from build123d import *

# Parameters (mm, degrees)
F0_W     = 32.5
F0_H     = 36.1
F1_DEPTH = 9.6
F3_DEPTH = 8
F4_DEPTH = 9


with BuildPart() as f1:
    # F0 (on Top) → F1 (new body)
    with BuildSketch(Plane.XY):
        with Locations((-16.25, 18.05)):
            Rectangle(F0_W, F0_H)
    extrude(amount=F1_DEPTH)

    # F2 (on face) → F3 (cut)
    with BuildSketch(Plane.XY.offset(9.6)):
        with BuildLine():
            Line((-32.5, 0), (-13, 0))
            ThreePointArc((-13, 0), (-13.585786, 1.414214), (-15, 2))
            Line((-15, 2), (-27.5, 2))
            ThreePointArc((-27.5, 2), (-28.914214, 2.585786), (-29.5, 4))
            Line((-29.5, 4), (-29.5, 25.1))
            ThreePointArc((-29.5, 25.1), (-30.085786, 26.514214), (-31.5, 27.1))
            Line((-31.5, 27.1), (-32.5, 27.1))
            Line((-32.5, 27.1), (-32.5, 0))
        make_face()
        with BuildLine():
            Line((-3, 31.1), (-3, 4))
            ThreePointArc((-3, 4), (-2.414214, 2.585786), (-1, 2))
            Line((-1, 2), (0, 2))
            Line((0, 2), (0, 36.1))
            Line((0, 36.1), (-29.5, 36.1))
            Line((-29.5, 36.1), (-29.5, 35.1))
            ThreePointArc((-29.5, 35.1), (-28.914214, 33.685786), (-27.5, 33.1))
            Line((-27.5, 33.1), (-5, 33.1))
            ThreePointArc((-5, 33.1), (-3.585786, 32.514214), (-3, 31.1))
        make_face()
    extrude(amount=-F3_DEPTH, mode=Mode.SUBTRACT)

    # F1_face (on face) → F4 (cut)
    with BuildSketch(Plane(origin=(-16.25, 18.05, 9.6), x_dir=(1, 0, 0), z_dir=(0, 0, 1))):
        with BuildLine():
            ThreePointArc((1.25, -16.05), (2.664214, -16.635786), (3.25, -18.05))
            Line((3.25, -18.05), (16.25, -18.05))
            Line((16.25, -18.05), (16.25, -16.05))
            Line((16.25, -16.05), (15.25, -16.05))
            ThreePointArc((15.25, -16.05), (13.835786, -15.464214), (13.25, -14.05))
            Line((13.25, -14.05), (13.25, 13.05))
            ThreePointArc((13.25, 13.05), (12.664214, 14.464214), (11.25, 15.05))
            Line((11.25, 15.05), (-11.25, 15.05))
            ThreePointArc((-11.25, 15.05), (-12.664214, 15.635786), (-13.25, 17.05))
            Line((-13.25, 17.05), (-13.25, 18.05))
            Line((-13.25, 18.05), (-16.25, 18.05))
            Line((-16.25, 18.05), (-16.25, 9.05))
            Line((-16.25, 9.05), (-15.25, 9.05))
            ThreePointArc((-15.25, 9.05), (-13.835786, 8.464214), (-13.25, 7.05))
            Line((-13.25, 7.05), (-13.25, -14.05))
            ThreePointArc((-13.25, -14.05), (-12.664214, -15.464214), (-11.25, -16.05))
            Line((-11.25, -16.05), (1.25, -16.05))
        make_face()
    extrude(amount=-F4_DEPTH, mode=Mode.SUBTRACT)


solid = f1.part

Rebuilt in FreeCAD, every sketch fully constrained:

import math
import FreeCAD as App
import Part
import Sketcher


def add_polygon(sketch, points):
    """Adds a closed chain of lines whose ends are joined by coincident constraints."""
    first, n = sketch.GeometryCount, len(points)
    for a, b in zip(points, points[1:] + points[:1]):
        sketch.addGeometry(Part.LineSegment(App.Vector(*a, 0), App.Vector(*b, 0)), False)
    for i in range(n):
        sketch.addConstraint(Sketcher.Constraint("Coincident", first + i, 2, first + (i + 1) % n, 1))

doc = App.newDocument("Part")
body = doc.addObject("PartDesign::Body", "Body")

# Sketch on XY plane
sketch1 = body.newObject("Sketcher::SketchObject", "Sketch")
sketch1.AttachmentSupport = (doc.getObject("XY_Plane"), [""])
sketch1.MapMode = "FlatFace"
add_polygon(sketch1, [(-32, 36), (-32, 0), (0, 0), (0, 36)])  # lines 0-3
sketch1.addConstraint(Sketcher.Constraint("Vertical", 0))
sketch1.addConstraint(Sketcher.Constraint("Horizontal", 1))
sketch1.addConstraint(Sketcher.Constraint("Vertical", 2))
sketch1.addConstraint(Sketcher.Constraint("Horizontal", 3))
sketch1.addConstraint(Sketcher.Constraint("Coincident", 1, 2, -1, 1))
sketch1.addConstraint(Sketcher.Constraint("DistanceX", 1, 1, 1, 2, 32.5))
sketch1.addConstraint(Sketcher.Constraint("DistanceY", 0, 2, 0, 1, 36.1))
pad1 = body.newObject("PartDesign::Pad", "Pad")
pad1.Profile = sketch1
pad1.Length = 9.6

# Sketch on XY plane
sketch2 = body.newObject("Sketcher::SketchObject", "Sketch001")
sketch2.AttachmentSupport = (doc.getObject("XY_Plane"), [""])
sketch2.MapMode = "FlatFace"
sketch2.AttachmentOffset = App.Placement(App.Vector(0, 0, 9.6), App.Rotation())
sketch2.addGeometry(Part.LineSegment(App.Vector(-32.5, 0, 0), App.Vector(-13, 0, 0)), False)
sketch2.addGeometry(Part.ArcOfCircle(Part.Circle(App.Vector(-15, 0, 0), App.Vector(0, 0, 1), 2), math.radians(0), math.radians(90)), False)
sketch2.addGeometry(Part.LineSegment(App.Vector(-15, 2, 0), App.Vector(-27.5, 2, 0)), False)
sketch2.addGeometry(Part.ArcOfCircle(Part.Circle(App.Vector(-27.5, 4, 0), App.Vector(0, 0, 1), 2), math.radians(180), math.radians(270)), False)
sketch2.addGeometry(Part.LineSegment(App.Vector(-29.5, 4, 0), App.Vector(-29.5, 25.1, 0)), False)
sketch2.addGeometry(Part.ArcOfCircle(Part.Circle(App.Vector(-31.5, 25.1, 0), App.Vector(0, 0, 1), 2), math.radians(0), math.radians(90)), False)
sketch2.addGeometry(Part.LineSegment(App.Vector(-31.5, 27.1, 0), App.Vector(-32.5, 27.1, 0)), False)
sketch2.addGeometry(Part.LineSegment(App.Vector(-32.5, 27.1, 0), App.Vector(-32.5, 0, 0)), False)
sketch2.addGeometry(Part.LineSegment(App.Vector(-3, 31.1, 0), App.Vector(-3, 4, 0)), False)
sketch2.addGeometry(Part.ArcOfCircle(Part.Circle(App.Vector(-1, 4, 0), App.Vector(0, 0, 1), 2), math.radians(180), math.radians(270)), False)
sketch2.addGeometry(Part.LineSegment(App.Vector(-1, 2, 0), App.Vector(0, 2, 0)), False)
sketch2.addGeometry(Part.LineSegment(App.Vector(0, 2, 0), App.Vector(0, 36.1, 0)), False)
sketch2.addGeometry(Part.LineSegment(App.Vector(0, 36.1, 0), App.Vector(-29.5, 36.1, 0)), False)
sketch2.addGeometry(Part.LineSegment(App.Vector(-29.5, 36.1, 0), App.Vector(-29.5, 35.1, 0)), False)
sketch2.addGeometry(Part.ArcOfCircle(Part.Circle(App.Vector(-27.5, 35.1, 0), App.Vector(0, 0, 1), 2), math.radians(180), math.radians(270)), False)
sketch2.addGeometry(Part.LineSegment(App.Vector(-27.5, 33.1, 0), App.Vector(-5, 33.1, 0)), False)
sketch2.addGeometry(Part.ArcOfCircle(Part.Circle(App.Vector(-5, 31.1, 0), App.Vector(0, 0, 1), 2), math.radians(0), math.radians(90)), False)
sketch2.addConstraint(Sketcher.Constraint("Coincident", 0, 2, 1, 1))
sketch2.addConstraint(Sketcher.Constraint("Tangent", 1, 2, 2, 1))
sketch2.addConstraint(Sketcher.Constraint("Tangent", 2, 2, 3, 2))
sketch2.addConstraint(Sketcher.Constraint("Tangent", 3, 1, 4, 1))
sketch2.addConstraint(Sketcher.Constraint("Tangent", 4, 2, 5, 1))
sketch2.addConstraint(Sketcher.Constraint("Tangent", 5, 2, 6, 1))
sketch2.addConstraint(Sketcher.Constraint("Coincident", 6, 2, 7, 1))
sketch2.addConstraint(Sketcher.Constraint("Coincident", 7, 2, 0, 1))
sketch2.addConstraint(Sketcher.Constraint("Tangent", 8, 2, 9, 1))
sketch2.addConstraint(Sketcher.Constraint("Tangent", 9, 2, 10, 1))
sketch2.addConstraint(Sketcher.Constraint("Coincident", 10, 2, 11, 1))
sketch2.addConstraint(Sketcher.Constraint("Coincident", 11, 2, 12, 1))
sketch2.addConstraint(Sketcher.Constraint("Coincident", 12, 2, 13, 1))
sketch2.addConstraint(Sketcher.Constraint("Tangent", 13, 2, 14, 1))
sketch2.addConstraint(Sketcher.Constraint("Tangent", 14, 2, 15, 1))
sketch2.addConstraint(Sketcher.Constraint("Tangent", 15, 2, 16, 2))
sketch2.addConstraint(Sketcher.Constraint("Tangent", 16, 1, 8, 1))
sketch2.addConstraint(Sketcher.Constraint("Horizontal", 0))
sketch2.addConstraint(Sketcher.Constraint("Horizontal", 2))
sketch2.addConstraint(Sketcher.Constraint("Vertical", 4))
sketch2.addConstraint(Sketcher.Constraint("Horizontal", 6))
sketch2.addConstraint(Sketcher.Constraint("Vertical", 7))
sketch2.addConstraint(Sketcher.Constraint("Vertical", 8))
sketch2.addConstraint(Sketcher.Constraint("Horizontal", 10))
sketch2.addConstraint(Sketcher.Constraint("Vertical", 11))
sketch2.addConstraint(Sketcher.Constraint("Horizontal", 12))
sketch2.addConstraint(Sketcher.Constraint("Vertical", 13))
sketch2.addConstraint(Sketcher.Constraint("Horizontal", 15))
sketch2.addConstraint(Sketcher.Constraint("Equal", 1, 3))
sketch2.addConstraint(Sketcher.Constraint("Equal", 3, 5))
sketch2.addConstraint(Sketcher.Constraint("Equal", 5, 9))
sketch2.addConstraint(Sketcher.Constraint("Equal", 9, 14))
sketch2.addConstraint(Sketcher.Constraint("Equal", 14, 16))
sketch2.addConstraint(Sketcher.Constraint("PointOnObject", 1, 3, -1))
sketch2.addConstraint(Sketcher.Constraint("PointOnObject", 0, 2, -1))
sketch2.addConstraint(Sketcher.Constraint("PointOnObject", 10, 2, -2))
sketch2.addConstraint(Sketcher.Constraint("Horizontal", 3, 3, 9, 3))
sketch2.addConstraint(Sketcher.Constraint("Vertical", 3, 3, 14, 3))
sketch2.addConstraint(Sketcher.Constraint("Equal", 6, 10))
sketch2.addConstraint(Sketcher.Constraint("Equal", 7, 8))
sketch2.addConstraint(Sketcher.Constraint("Equal", 10, 13))
sketch2.addConstraint(Sketcher.Constraint("Radius", 1, 1.999999))
sketch2.addConstraint(Sketcher.Constraint("DistanceX", 6, 2, 6, 1, 1.0))
sketch2.addConstraint(Sketcher.Constraint("DistanceX", 0, 1, 0, 2, 19.5))
sketch2.addConstraint(Sketcher.Constraint("DistanceX", 12, 2, 12, 1, 29.5))
sketch2.addConstraint(Sketcher.Constraint("DistanceY", 4, 1, 4, 2, 21.1))
pocket1 = body.newObject("PartDesign::Pocket", "Pocket")
pocket1.Profile = sketch2
pocket1.Length = 8

# Sketch on XY plane
sketch3 = body.newObject("Sketcher::SketchObject", "Sketch002")
sketch3.AttachmentSupport = (doc.getObject("XY_Plane"), [""])
sketch3.MapMode = "FlatFace"
sketch3.AttachmentOffset = App.Placement(App.Vector(0, 0, 9.6), App.Rotation())
sketch3.addGeometry(Part.ArcOfCircle(Part.Circle(App.Vector(-15, 0, 0), App.Vector(0, 0, 1), 2), math.radians(0), math.radians(90)), False)
sketch3.addGeometry(Part.LineSegment(App.Vector(-13, 0, 0), App.Vector(0, 0, 0)), False)
sketch3.addGeometry(Part.LineSegment(App.Vector(0, 0, 0), App.Vector(0, 2, 0)), False)
sketch3.addGeometry(Part.LineSegment(App.Vector(0, 2, 0), App.Vector(-1, 2, 0)), False)
sketch3.addGeometry(Part.ArcOfCircle(Part.Circle(App.Vector(-1, 4, 0), App.Vector(0, 0, 1), 2), math.radians(180), math.radians(270)), False)
sketch3.addGeometry(Part.LineSegment(App.Vector(-3, 4, 0), App.Vector(-3, 31.1, 0)), False)
sketch3.addGeometry(Part.ArcOfCircle(Part.Circle(App.Vector(-5, 31.1, 0), App.Vector(0, 0, 1), 2), math.radians(0), math.radians(90)), False)
sketch3.addGeometry(Part.LineSegment(App.Vector(-5, 33.1, 0), App.Vector(-27.5, 33.1, 0)), False)
sketch3.addGeometry(Part.ArcOfCircle(Part.Circle(App.Vector(-27.5, 35.1, 0), App.Vector(0, 0, 1), 2), math.radians(180), math.radians(270)), False)
sketch3.addGeometry(Part.LineSegment(App.Vector(-29.5, 35.1, 0), App.Vector(-29.5, 36.1, 0)), False)
sketch3.addGeometry(Part.LineSegment(App.Vector(-29.5, 36.1, 0), App.Vector(-32.5, 36.1, 0)), False)
sketch3.addGeometry(Part.LineSegment(App.Vector(-32.5, 36.1, 0), App.Vector(-32.5, 27.1, 0)), False)
sketch3.addGeometry(Part.LineSegment(App.Vector(-32.5, 27.1, 0), App.Vector(-31.5, 27.1, 0)), False)
sketch3.addGeometry(Part.ArcOfCircle(Part.Circle(App.Vector(-31.5, 25.1, 0), App.Vector(0, 0, 1), 2), math.radians(0), math.radians(90)), False)
sketch3.addGeometry(Part.LineSegment(App.Vector(-29.5, 25.1, 0), App.Vector(-29.5, 4, 0)), False)
sketch3.addGeometry(Part.ArcOfCircle(Part.Circle(App.Vector(-27.5, 4, 0), App.Vector(0, 0, 1), 2), math.radians(180), math.radians(270)), False)
sketch3.addGeometry(Part.LineSegment(App.Vector(-27.5, 2, 0), App.Vector(-15, 2, 0)), False)
sketch3.addConstraint(Sketcher.Constraint("Coincident", 0, 1, 1, 1))
sketch3.addConstraint(Sketcher.Constraint("Coincident", 1, 2, 2, 1))
sketch3.addConstraint(Sketcher.Constraint("Coincident", 2, 2, 3, 1))
sketch3.addConstraint(Sketcher.Constraint("Tangent", 3, 2, 4, 2))
sketch3.addConstraint(Sketcher.Constraint("Tangent", 4, 1, 5, 1))
sketch3.addConstraint(Sketcher.Constraint("Tangent", 5, 2, 6, 1))
sketch3.addConstraint(Sketcher.Constraint("Tangent", 6, 2, 7, 1))
sketch3.addConstraint(Sketcher.Constraint("Tangent", 7, 2, 8, 2))
sketch3.addConstraint(Sketcher.Constraint("Tangent", 8, 1, 9, 1))
sketch3.addConstraint(Sketcher.Constraint("Coincident", 9, 2, 10, 1))
sketch3.addConstraint(Sketcher.Constraint("Coincident", 10, 2, 11, 1))
sketch3.addConstraint(Sketcher.Constraint("Coincident", 11, 2, 12, 1))
sketch3.addConstraint(Sketcher.Constraint("Tangent", 12, 2, 13, 2))
sketch3.addConstraint(Sketcher.Constraint("Tangent", 13, 1, 14, 1))
sketch3.addConstraint(Sketcher.Constraint("Tangent", 14, 2, 15, 1))
sketch3.addConstraint(Sketcher.Constraint("Tangent", 15, 2, 16, 1))
sketch3.addConstraint(Sketcher.Constraint("Tangent", 16, 2, 0, 2))
sketch3.addConstraint(Sketcher.Constraint("Horizontal", 1))
sketch3.addConstraint(Sketcher.Constraint("Vertical", 2))
sketch3.addConstraint(Sketcher.Constraint("Horizontal", 3))
sketch3.addConstraint(Sketcher.Constraint("Vertical", 5))
sketch3.addConstraint(Sketcher.Constraint("Horizontal", 7))
sketch3.addConstraint(Sketcher.Constraint("Vertical", 9))
sketch3.addConstraint(Sketcher.Constraint("Horizontal", 10))
sketch3.addConstraint(Sketcher.Constraint("Vertical", 11))
sketch3.addConstraint(Sketcher.Constraint("Horizontal", 12))
sketch3.addConstraint(Sketcher.Constraint("Vertical", 14))
sketch3.addConstraint(Sketcher.Constraint("Horizontal", 16))
sketch3.addConstraint(Sketcher.Constraint("Coincident", 1, 2, -1, 1))
sketch3.addConstraint(Sketcher.Constraint("Equal", 0, 4))
sketch3.addConstraint(Sketcher.Constraint("Equal", 4, 6))
sketch3.addConstraint(Sketcher.Constraint("Equal", 6, 8))
sketch3.addConstraint(Sketcher.Constraint("Equal", 8, 13))
sketch3.addConstraint(Sketcher.Constraint("Equal", 13, 15))
sketch3.addConstraint(Sketcher.Constraint("PointOnObject", 0, 3, -1))
sketch3.addConstraint(Sketcher.Constraint("Horizontal", 4, 3, 15, 3))
sketch3.addConstraint(Sketcher.Constraint("Vertical", 8, 3, 15, 3))
sketch3.addConstraint(Sketcher.Constraint("Equal", 3, 12))
sketch3.addConstraint(Sketcher.Constraint("Equal", 12, 9))
sketch3.addConstraint(Sketcher.Constraint("Radius", 0, 1.999999))
sketch3.addConstraint(Sketcher.Constraint("DistanceX", 1, 1, 1, 2, 13.0))
sketch3.addConstraint(Sketcher.Constraint("DistanceX", 3, 2, 3, 1, 1.0))
sketch3.addConstraint(Sketcher.Constraint("DistanceY", 11, 2, 11, 1, 9.0))
sketch3.addConstraint(Sketcher.Constraint("DistanceX", 7, 2, 7, 1, 22.5))
sketch3.addConstraint(Sketcher.Constraint("DistanceY", 5, 1, 5, 2, 27.1))
pocket2 = body.newObject("PartDesign::Pocket", "Pocket001")
pocket2.Profile = sketch3
pocket2.Length = 9

doc.recompute()
